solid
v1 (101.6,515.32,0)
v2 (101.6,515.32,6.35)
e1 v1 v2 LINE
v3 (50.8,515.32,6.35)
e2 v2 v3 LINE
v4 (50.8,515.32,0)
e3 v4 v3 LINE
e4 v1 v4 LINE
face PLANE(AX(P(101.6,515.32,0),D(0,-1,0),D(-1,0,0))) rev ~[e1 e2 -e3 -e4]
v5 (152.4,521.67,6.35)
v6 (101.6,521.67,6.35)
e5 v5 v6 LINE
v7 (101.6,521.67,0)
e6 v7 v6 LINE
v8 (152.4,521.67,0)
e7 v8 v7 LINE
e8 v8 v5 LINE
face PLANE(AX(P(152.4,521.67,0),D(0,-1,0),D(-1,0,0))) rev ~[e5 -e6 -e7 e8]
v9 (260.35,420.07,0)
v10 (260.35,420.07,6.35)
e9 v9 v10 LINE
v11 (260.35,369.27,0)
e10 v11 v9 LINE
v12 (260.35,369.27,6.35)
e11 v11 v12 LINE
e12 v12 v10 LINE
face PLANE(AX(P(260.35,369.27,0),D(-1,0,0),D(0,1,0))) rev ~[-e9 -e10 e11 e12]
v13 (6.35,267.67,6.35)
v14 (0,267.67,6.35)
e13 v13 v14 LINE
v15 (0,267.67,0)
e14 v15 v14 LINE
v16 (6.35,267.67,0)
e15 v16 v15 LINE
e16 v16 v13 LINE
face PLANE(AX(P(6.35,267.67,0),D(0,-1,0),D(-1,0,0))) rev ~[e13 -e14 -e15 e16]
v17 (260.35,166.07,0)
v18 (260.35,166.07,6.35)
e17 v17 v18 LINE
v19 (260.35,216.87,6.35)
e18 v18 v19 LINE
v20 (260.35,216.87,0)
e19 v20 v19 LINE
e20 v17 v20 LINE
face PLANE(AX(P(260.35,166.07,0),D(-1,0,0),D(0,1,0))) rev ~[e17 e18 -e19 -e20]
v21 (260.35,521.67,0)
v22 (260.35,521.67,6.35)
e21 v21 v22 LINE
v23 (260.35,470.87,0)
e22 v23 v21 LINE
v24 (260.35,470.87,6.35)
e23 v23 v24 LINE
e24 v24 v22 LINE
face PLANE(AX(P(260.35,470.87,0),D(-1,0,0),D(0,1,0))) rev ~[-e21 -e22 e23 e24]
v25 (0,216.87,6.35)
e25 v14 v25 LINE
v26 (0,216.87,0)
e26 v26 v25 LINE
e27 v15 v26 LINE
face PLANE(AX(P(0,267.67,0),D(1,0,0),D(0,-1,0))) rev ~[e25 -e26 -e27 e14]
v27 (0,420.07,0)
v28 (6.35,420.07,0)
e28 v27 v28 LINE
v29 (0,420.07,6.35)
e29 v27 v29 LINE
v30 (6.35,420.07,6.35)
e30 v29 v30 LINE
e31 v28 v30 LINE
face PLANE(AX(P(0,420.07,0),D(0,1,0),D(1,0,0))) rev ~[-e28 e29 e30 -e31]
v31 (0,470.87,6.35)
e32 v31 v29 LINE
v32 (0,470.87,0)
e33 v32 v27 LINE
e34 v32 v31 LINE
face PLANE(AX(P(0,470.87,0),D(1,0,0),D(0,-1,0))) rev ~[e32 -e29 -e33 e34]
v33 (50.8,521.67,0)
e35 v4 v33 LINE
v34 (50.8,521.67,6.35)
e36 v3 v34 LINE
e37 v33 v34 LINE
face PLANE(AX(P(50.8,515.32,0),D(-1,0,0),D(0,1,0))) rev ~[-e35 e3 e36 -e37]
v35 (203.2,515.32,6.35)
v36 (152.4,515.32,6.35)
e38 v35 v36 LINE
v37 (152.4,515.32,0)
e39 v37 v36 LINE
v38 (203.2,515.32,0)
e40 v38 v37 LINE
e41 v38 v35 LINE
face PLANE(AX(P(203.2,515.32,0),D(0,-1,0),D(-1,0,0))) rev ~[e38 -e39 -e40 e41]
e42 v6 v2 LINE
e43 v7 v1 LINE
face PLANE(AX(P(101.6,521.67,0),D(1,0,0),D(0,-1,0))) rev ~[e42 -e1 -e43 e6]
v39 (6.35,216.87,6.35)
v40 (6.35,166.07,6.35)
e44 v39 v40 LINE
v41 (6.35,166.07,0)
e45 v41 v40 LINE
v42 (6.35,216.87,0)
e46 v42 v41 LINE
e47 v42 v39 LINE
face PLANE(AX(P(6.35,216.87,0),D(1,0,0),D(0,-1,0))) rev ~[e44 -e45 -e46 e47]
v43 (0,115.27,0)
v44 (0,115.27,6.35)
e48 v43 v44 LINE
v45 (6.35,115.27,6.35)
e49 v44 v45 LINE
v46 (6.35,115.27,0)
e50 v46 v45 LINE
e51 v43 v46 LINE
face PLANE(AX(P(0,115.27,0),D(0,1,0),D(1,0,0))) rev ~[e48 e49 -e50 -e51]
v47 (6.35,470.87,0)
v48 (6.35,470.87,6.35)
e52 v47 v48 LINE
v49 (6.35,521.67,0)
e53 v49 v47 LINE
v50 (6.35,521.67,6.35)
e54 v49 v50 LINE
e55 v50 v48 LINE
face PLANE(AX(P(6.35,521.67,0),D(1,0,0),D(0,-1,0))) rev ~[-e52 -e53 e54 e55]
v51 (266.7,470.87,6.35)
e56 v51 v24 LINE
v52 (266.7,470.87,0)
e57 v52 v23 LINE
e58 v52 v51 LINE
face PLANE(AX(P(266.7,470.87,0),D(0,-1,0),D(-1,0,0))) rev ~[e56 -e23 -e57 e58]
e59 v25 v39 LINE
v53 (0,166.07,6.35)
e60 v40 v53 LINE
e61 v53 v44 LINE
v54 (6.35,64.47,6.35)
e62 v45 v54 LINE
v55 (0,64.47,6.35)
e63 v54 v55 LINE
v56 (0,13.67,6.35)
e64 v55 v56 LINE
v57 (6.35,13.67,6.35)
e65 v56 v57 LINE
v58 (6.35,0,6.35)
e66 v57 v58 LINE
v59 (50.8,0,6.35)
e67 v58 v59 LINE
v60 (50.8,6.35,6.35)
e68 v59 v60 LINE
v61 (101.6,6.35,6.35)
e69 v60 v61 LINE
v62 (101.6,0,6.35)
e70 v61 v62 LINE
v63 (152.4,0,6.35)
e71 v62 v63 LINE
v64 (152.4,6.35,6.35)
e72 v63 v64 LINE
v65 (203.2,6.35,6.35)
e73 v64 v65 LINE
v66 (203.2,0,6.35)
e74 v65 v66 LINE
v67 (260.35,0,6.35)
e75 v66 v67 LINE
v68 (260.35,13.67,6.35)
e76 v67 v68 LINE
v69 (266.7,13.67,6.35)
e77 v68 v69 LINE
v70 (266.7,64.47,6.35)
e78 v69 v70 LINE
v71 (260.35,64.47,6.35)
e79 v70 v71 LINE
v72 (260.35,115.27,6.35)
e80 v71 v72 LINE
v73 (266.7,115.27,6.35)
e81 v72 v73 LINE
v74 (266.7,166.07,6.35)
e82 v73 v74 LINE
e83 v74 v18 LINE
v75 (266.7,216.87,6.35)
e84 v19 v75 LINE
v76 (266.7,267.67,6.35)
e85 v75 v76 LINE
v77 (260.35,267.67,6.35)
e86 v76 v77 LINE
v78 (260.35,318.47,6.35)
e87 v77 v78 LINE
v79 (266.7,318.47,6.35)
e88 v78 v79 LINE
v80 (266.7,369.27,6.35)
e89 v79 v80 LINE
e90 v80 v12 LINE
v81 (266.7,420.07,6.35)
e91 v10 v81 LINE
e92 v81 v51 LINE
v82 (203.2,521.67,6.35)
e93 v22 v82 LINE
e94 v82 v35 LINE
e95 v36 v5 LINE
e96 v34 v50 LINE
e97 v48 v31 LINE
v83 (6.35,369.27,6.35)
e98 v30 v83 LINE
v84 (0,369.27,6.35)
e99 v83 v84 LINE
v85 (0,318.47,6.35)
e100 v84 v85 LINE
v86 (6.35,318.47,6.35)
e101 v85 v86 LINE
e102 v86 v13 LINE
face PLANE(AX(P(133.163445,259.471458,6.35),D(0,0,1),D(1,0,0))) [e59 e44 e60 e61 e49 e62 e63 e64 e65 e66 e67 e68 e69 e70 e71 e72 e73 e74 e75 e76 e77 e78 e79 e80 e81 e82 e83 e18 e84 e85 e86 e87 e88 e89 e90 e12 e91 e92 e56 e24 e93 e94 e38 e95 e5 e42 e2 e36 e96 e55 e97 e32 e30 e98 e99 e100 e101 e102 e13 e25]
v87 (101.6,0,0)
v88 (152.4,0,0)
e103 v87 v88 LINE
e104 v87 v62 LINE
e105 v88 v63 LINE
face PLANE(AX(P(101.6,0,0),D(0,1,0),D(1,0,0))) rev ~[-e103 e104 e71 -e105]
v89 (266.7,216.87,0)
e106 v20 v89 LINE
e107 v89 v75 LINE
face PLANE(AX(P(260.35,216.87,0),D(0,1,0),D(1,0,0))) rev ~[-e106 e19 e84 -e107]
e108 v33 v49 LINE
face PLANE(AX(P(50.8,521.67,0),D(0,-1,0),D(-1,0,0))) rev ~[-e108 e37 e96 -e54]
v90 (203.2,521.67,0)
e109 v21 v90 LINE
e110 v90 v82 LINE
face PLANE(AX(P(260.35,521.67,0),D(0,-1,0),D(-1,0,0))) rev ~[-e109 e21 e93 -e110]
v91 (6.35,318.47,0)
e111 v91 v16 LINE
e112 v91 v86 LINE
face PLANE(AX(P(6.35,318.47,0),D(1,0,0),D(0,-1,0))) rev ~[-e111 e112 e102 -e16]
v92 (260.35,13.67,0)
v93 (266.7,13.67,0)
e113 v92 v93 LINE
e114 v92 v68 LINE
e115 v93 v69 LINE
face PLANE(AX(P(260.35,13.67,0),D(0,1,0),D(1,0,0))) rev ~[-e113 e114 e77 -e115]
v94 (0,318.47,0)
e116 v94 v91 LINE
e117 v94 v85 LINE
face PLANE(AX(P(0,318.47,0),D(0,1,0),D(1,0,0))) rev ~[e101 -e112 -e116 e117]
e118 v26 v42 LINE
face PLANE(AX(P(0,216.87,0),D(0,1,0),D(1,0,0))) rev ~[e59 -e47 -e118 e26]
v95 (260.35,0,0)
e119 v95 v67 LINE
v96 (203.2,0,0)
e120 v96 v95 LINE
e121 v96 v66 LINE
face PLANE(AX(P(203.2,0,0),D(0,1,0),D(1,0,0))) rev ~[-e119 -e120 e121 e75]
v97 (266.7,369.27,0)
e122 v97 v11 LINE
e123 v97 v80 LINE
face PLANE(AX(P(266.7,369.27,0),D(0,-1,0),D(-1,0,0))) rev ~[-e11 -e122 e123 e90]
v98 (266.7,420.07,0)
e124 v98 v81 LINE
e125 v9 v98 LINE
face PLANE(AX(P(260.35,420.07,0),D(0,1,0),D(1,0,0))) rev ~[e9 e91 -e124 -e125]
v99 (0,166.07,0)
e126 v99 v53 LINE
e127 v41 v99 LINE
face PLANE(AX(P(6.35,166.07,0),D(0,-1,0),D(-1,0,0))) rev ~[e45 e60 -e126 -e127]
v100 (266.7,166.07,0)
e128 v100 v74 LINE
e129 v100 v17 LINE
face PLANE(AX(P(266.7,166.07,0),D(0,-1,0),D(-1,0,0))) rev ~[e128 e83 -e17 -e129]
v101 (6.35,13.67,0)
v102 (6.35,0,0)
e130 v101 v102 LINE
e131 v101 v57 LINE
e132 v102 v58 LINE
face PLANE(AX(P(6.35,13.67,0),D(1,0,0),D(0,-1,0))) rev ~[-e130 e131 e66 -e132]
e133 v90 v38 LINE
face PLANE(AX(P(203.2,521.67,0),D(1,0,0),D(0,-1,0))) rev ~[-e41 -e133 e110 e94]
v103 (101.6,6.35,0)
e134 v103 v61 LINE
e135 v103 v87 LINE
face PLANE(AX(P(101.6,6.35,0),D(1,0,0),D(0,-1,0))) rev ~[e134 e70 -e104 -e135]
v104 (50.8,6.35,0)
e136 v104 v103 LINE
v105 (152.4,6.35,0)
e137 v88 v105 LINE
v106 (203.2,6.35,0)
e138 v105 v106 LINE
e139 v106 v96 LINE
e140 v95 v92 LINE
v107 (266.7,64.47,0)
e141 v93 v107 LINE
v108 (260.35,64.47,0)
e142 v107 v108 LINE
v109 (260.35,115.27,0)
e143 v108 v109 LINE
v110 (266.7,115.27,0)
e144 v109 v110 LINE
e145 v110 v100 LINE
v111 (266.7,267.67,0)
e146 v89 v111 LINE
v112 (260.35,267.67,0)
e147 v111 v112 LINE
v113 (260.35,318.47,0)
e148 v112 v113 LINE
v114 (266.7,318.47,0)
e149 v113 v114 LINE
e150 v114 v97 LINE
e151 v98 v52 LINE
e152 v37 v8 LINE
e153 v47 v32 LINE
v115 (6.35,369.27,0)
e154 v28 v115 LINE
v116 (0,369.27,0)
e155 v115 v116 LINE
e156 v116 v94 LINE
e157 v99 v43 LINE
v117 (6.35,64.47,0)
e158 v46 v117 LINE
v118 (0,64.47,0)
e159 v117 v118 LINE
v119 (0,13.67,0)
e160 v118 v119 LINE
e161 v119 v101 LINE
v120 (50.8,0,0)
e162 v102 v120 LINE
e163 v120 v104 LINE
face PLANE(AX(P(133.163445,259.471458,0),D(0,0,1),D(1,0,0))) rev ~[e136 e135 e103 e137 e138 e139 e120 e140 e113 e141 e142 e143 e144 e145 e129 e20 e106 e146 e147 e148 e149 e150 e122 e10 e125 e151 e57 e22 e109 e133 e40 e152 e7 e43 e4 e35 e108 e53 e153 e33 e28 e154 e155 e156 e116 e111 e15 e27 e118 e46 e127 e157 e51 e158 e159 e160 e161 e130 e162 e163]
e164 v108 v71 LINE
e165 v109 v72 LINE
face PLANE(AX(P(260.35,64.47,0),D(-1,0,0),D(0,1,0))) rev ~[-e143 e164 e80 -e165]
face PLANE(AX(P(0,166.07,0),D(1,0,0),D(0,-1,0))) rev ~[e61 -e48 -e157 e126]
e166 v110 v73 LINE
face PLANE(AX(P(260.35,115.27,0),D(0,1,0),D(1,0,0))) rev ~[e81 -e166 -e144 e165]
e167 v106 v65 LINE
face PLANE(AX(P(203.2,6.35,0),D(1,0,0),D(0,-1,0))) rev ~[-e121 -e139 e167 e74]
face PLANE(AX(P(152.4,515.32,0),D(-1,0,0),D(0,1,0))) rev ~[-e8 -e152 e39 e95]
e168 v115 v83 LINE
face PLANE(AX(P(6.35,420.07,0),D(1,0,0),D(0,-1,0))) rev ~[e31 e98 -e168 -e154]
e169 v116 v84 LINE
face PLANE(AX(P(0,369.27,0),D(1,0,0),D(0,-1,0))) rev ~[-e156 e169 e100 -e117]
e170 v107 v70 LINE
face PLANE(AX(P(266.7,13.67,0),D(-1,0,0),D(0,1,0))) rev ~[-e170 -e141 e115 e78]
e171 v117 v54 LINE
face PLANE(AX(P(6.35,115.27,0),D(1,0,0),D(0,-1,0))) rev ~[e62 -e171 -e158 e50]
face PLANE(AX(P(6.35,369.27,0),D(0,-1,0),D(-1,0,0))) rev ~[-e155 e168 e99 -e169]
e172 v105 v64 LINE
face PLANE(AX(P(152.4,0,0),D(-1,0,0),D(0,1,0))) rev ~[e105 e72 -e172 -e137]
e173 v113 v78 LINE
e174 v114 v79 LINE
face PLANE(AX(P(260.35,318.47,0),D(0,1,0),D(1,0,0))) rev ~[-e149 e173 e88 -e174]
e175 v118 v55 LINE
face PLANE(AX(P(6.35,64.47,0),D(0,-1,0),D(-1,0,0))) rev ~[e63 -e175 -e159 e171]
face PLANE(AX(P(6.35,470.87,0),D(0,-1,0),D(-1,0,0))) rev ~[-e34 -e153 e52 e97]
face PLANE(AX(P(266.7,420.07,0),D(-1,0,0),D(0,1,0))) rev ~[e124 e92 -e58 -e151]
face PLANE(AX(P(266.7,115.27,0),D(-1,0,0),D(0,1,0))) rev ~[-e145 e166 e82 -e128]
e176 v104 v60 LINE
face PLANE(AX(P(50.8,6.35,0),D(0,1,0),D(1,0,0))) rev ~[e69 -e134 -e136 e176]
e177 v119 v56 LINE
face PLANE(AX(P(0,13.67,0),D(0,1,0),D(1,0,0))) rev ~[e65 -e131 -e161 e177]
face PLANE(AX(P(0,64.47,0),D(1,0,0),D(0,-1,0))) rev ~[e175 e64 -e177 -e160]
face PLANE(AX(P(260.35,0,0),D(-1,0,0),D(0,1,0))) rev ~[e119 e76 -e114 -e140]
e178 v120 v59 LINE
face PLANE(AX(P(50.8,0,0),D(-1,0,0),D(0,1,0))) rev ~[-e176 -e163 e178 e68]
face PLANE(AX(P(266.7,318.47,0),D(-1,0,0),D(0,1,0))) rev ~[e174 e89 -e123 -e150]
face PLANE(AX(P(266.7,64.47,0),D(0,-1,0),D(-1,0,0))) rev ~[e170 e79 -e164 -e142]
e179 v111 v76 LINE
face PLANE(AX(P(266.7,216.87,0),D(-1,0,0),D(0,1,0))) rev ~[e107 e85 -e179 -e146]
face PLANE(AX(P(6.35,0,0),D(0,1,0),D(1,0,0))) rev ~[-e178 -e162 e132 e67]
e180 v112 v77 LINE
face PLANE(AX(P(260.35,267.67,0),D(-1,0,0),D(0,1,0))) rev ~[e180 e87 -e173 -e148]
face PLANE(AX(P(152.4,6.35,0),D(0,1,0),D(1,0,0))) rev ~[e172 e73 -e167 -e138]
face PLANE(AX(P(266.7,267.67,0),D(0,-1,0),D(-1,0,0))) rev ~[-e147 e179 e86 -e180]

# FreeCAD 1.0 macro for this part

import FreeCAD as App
import Part
import Sketcher
from FreeCAD import Vector
Q = App.Units.Quantity


def add_polygon(sketch, points):
    """Adds a closed chain of lines whose ends are joined by coincident constraints."""
    first, n = sketch.GeometryCount, len(points)
    for a, b in zip(points, points[1:] + points[:1]):
        sketch.addGeometry(Part.LineSegment(App.Vector(*a, 0), App.Vector(*b, 0)), False)
    for i in range(n):
        sketch.addConstraint(Sketcher.Constraint("Coincident", first + i, 2, first + (i + 1) % n, 1))

doc = App.newDocument("Part")
body = doc.addObject("PartDesign::Body", "Body")

# Sketch on XY plane
sketch1 = body.newObject("Sketcher::SketchObject", "Sketch")
sketch1.AttachmentSupport = (doc.getObject("XY_Plane"), [""])
sketch1.MapMode = "FlatFace"
add_polygon(sketch1, [(6.35, 521.67), (6.35, 470.87), (0, 470.87), (0, 420.07), (6.35, 420.07), (6.35, 369.27), (0, 369.27), (0, 318.47), (6.35, 318.47), (6.35, 267.67), (0, 267.67), (0, 216.87), (6.35, 216.87), (6.35, 166.07), (0, 166.07), (0, 115.27), (6.35, 115.27), (6.35, 64.47), (0, 64.47), (0, 13.67), (6.35, 13.67), (6.35, 0), (50.8, 0), (50.8, 6.35), (101.6, 6.35), (101.6, 0), (152.4, 0), (152.4, 6.35), (203.2, 6.35), (203.2, 0), (260.35, 0), (260.35, 13.67), (266.7, 13.67), (266.7, 64.47), (260.35, 64.47), (260.35, 115.27), (266.7, 115.27), (266.7, 166.07), (260.35, 166.07), (260.35, 216.87), (266.7, 216.87), (266.7, 267.67), (260.35, 267.67), (260.35, 318.47), (266.7, 318.47), (266.7, 369.27), (260.35, 369.27), (260.35, 420.07), (266.7, 420.07), (266.7, 470.87), (260.35, 470.87), (260.35, 521.67), (203.2, 521.67), (203.2, 515.32), (152.4, 515.32), (152.4, 521.67), (101.6, 521.67), (101.6, 515.32), (50.8, 515.32), (50.8, 521.67)])  # lines 0-59
sketch1.addConstraint([
    Sketcher.Constraint("Vertical", 0),
    Sketcher.Constraint("Horizontal", 1),
    Sketcher.Constraint("Vertical", 2),
    Sketcher.Constraint("Horizontal", 3),
    Sketcher.Constraint("Vertical", 4),
    Sketcher.Constraint("Horizontal", 5),
    Sketcher.Constraint("Vertical", 6),
    Sketcher.Constraint("Horizontal", 7),
    Sketcher.Constraint("Vertical", 8),
    Sketcher.Constraint("Horizontal", 9),
    Sketcher.Constraint("Vertical", 10),
    Sketcher.Constraint("Horizontal", 11),
    Sketcher.Constraint("Vertical", 12),
    Sketcher.Constraint("Horizontal", 13),
    Sketcher.Constraint("Vertical", 14),
    Sketcher.Constraint("Horizontal", 15),
    Sketcher.Constraint("Vertical", 16),
    Sketcher.Constraint("Horizontal", 17),
    Sketcher.Constraint("Vertical", 18),
    Sketcher.Constraint("Horizontal", 19),
    Sketcher.Constraint("Vertical", 20),
    Sketcher.Constraint("Horizontal", 21),
    Sketcher.Constraint("Vertical", 22),
    Sketcher.Constraint("Horizontal", 23),
    Sketcher.Constraint("Vertical", 24),
    Sketcher.Constraint("Horizontal", 25),
    Sketcher.Constraint("Vertical", 26),
    Sketcher.Constraint("Horizontal", 27),
    Sketcher.Constraint("Vertical", 28),
    Sketcher.Constraint("Horizontal", 29),
    Sketcher.Constraint("Vertical", 30),
    Sketcher.Constraint("Horizontal", 31),
    Sketcher.Constraint("Vertical", 32),
    Sketcher.Constraint("Horizontal", 33),
    Sketcher.Constraint("Vertical", 34),
    Sketcher.Constraint("Horizontal", 35),
    Sketcher.Constraint("Vertical", 36),
    Sketcher.Constraint("Horizontal", 37),
    Sketcher.Constraint("Vertical", 38),
    Sketcher.Constraint("Horizontal", 39),
    Sketcher.Constraint("Vertical", 40),
    Sketcher.Constraint("Horizontal", 41),
    Sketcher.Constraint("Vertical", 42),
    Sketcher.Constraint("Horizontal", 43),
    Sketcher.Constraint("Vertical", 44),
    Sketcher.Constraint("Horizontal", 45),
    Sketcher.Constraint("Vertical", 46),
    Sketcher.Constraint("Horizontal", 47),
    Sketcher.Constraint("Vertical", 48),
    Sketcher.Constraint("Horizontal", 49),
    Sketcher.Constraint("Vertical", 50),
    Sketcher.Constraint("Horizontal", 51),
    Sketcher.Constraint("Vertical", 52),
    Sketcher.Constraint("Horizontal", 53),
    Sketcher.Constraint("Vertical", 54),
    Sketcher.Constraint("Horizontal", 55),
    Sketcher.Constraint("Vertical", 56),
    Sketcher.Constraint("Horizontal", 57),
    Sketcher.Constraint("Vertical", 58),
    Sketcher.Constraint("Horizontal", 59),
    Sketcher.Constraint("PointOnObject", 1, 2, -2),
    Sketcher.Constraint("PointOnObject", 5, 2, -2),
    Sketcher.Constraint("PointOnObject", 9, 2, -2),
    Sketcher.Constraint("PointOnObject", 13, 2, -2),
    Sketcher.Constraint("PointOnObject", 17, 2, -2),
    Sketcher.Constraint("PointOnObject", 20, 2, -1),
    Sketcher.Constraint("PointOnObject", 24, 2, -1),
    Sketcher.Constraint("PointOnObject", 28, 2, -1),
    Sketcher.Constraint("Horizontal", 23, 2, 26, 2),
    Sketcher.Constraint("Horizontal", 19, 2, 30, 2),
    Sketcher.Constraint("Horizontal", 17, 2, 32, 2),
    Sketcher.Constraint("Horizontal", 15, 2, 34, 2),
    Sketcher.Constraint("Horizontal", 13, 2, 36, 2),
    Sketcher.Constraint("Horizontal", 11, 2, 38, 2),
    Sketcher.Constraint("Horizontal", 9, 2, 40, 2),
    Sketcher.Constraint("Horizontal", 7, 2, 42, 2),
    Sketcher.Constraint("Horizontal", 5, 2, 44, 2),
    Sketcher.Constraint("Horizontal", 3, 2, 46, 2),
    Sketcher.Constraint("Horizontal", 1, 2, 48, 2),
    Sketcher.Constraint("Horizontal", 51, 2, 54, 2),
    Sketcher.Constraint("Horizontal", 53, 2, 56, 2),
    Sketcher.Constraint("Horizontal", 55, 2, 58, 2),
    Sketcher.Constraint("Vertical", 0, 2, 3, 2),
    Sketcher.Constraint("Vertical", 4, 2, 7, 2),
    Sketcher.Constraint("Vertical", 8, 2, 11, 2),
    Sketcher.Constraint("Vertical", 12, 2, 15, 2),
    Sketcher.Constraint("Vertical", 16, 2, 19, 2),
    Sketcher.Constraint("Vertical", 30, 2, 33, 2),
    Sketcher.Constraint("Vertical", 32, 2, 35, 2),
    Sketcher.Constraint("Vertical", 34, 2, 37, 2),
    Sketcher.Constraint("Vertical", 36, 2, 39, 2),
    Sketcher.Constraint("Vertical", 38, 2, 41, 2),
    Sketcher.Constraint("Vertical", 40, 2, 43, 2),
    Sketcher.Constraint("Vertical", 42, 2, 45, 2),
    Sketcher.Constraint("Vertical", 44, 2, 47, 2),
    Sketcher.Constraint("Vertical", 46, 2, 49, 2),
    Sketcher.Constraint("Vertical", 28, 2, 51, 2),
    Sketcher.Constraint("Vertical", 26, 2, 53, 2),
    Sketcher.Constraint("Vertical", 24, 2, 55, 2),
    Sketcher.Constraint("Vertical", 22, 2, 57, 2),
    Sketcher.Constraint("Equal", 23, 25),
    Sketcher.Constraint("Equal", 25, 27),
    Sketcher.Constraint("Equal", 19, 31),
    Sketcher.Constraint("Equal", 57, 0),
    Sketcher.Constraint("Equal", 0, 2),
    Sketcher.Constraint("Equal", 2, 4),
    Sketcher.Constraint("Equal", 4, 6),
    Sketcher.Constraint("Equal", 6, 8),
    Sketcher.Constraint("Equal", 8, 10),
    Sketcher.Constraint("Equal", 10, 12),
    Sketcher.Constraint("Equal", 12, 14),
    Sketcher.Constraint("Equal", 14, 16),
    Sketcher.Constraint("Equal", 16, 18),
    Sketcher.Constraint("Equal", 49, 22),
    Sketcher.Constraint("Equal", 28, 52),
    Sketcher.Constraint("DistanceX", 23, 1, 23, 2, Q("2 in")),
    Sketcher.Constraint("DistanceX", -1, 1, 21, 2, Q("2 in")),
    Sketcher.Constraint("DistanceX", 1, 2, 1, 1, Q("0.25 in")),
    Sketcher.Constraint("DistanceX", 29, 1, 29, 2, Q("2.25 in")),
    Sketcher.Constraint("DistanceY", 20, 2, 20, 1, Q("13.67 mm")),
])
pad1 = body.newObject("PartDesign::Pad", "Pad")
pad1.Profile = sketch1
pad1.Length = Q("0.25 in")

doc.recompute()
